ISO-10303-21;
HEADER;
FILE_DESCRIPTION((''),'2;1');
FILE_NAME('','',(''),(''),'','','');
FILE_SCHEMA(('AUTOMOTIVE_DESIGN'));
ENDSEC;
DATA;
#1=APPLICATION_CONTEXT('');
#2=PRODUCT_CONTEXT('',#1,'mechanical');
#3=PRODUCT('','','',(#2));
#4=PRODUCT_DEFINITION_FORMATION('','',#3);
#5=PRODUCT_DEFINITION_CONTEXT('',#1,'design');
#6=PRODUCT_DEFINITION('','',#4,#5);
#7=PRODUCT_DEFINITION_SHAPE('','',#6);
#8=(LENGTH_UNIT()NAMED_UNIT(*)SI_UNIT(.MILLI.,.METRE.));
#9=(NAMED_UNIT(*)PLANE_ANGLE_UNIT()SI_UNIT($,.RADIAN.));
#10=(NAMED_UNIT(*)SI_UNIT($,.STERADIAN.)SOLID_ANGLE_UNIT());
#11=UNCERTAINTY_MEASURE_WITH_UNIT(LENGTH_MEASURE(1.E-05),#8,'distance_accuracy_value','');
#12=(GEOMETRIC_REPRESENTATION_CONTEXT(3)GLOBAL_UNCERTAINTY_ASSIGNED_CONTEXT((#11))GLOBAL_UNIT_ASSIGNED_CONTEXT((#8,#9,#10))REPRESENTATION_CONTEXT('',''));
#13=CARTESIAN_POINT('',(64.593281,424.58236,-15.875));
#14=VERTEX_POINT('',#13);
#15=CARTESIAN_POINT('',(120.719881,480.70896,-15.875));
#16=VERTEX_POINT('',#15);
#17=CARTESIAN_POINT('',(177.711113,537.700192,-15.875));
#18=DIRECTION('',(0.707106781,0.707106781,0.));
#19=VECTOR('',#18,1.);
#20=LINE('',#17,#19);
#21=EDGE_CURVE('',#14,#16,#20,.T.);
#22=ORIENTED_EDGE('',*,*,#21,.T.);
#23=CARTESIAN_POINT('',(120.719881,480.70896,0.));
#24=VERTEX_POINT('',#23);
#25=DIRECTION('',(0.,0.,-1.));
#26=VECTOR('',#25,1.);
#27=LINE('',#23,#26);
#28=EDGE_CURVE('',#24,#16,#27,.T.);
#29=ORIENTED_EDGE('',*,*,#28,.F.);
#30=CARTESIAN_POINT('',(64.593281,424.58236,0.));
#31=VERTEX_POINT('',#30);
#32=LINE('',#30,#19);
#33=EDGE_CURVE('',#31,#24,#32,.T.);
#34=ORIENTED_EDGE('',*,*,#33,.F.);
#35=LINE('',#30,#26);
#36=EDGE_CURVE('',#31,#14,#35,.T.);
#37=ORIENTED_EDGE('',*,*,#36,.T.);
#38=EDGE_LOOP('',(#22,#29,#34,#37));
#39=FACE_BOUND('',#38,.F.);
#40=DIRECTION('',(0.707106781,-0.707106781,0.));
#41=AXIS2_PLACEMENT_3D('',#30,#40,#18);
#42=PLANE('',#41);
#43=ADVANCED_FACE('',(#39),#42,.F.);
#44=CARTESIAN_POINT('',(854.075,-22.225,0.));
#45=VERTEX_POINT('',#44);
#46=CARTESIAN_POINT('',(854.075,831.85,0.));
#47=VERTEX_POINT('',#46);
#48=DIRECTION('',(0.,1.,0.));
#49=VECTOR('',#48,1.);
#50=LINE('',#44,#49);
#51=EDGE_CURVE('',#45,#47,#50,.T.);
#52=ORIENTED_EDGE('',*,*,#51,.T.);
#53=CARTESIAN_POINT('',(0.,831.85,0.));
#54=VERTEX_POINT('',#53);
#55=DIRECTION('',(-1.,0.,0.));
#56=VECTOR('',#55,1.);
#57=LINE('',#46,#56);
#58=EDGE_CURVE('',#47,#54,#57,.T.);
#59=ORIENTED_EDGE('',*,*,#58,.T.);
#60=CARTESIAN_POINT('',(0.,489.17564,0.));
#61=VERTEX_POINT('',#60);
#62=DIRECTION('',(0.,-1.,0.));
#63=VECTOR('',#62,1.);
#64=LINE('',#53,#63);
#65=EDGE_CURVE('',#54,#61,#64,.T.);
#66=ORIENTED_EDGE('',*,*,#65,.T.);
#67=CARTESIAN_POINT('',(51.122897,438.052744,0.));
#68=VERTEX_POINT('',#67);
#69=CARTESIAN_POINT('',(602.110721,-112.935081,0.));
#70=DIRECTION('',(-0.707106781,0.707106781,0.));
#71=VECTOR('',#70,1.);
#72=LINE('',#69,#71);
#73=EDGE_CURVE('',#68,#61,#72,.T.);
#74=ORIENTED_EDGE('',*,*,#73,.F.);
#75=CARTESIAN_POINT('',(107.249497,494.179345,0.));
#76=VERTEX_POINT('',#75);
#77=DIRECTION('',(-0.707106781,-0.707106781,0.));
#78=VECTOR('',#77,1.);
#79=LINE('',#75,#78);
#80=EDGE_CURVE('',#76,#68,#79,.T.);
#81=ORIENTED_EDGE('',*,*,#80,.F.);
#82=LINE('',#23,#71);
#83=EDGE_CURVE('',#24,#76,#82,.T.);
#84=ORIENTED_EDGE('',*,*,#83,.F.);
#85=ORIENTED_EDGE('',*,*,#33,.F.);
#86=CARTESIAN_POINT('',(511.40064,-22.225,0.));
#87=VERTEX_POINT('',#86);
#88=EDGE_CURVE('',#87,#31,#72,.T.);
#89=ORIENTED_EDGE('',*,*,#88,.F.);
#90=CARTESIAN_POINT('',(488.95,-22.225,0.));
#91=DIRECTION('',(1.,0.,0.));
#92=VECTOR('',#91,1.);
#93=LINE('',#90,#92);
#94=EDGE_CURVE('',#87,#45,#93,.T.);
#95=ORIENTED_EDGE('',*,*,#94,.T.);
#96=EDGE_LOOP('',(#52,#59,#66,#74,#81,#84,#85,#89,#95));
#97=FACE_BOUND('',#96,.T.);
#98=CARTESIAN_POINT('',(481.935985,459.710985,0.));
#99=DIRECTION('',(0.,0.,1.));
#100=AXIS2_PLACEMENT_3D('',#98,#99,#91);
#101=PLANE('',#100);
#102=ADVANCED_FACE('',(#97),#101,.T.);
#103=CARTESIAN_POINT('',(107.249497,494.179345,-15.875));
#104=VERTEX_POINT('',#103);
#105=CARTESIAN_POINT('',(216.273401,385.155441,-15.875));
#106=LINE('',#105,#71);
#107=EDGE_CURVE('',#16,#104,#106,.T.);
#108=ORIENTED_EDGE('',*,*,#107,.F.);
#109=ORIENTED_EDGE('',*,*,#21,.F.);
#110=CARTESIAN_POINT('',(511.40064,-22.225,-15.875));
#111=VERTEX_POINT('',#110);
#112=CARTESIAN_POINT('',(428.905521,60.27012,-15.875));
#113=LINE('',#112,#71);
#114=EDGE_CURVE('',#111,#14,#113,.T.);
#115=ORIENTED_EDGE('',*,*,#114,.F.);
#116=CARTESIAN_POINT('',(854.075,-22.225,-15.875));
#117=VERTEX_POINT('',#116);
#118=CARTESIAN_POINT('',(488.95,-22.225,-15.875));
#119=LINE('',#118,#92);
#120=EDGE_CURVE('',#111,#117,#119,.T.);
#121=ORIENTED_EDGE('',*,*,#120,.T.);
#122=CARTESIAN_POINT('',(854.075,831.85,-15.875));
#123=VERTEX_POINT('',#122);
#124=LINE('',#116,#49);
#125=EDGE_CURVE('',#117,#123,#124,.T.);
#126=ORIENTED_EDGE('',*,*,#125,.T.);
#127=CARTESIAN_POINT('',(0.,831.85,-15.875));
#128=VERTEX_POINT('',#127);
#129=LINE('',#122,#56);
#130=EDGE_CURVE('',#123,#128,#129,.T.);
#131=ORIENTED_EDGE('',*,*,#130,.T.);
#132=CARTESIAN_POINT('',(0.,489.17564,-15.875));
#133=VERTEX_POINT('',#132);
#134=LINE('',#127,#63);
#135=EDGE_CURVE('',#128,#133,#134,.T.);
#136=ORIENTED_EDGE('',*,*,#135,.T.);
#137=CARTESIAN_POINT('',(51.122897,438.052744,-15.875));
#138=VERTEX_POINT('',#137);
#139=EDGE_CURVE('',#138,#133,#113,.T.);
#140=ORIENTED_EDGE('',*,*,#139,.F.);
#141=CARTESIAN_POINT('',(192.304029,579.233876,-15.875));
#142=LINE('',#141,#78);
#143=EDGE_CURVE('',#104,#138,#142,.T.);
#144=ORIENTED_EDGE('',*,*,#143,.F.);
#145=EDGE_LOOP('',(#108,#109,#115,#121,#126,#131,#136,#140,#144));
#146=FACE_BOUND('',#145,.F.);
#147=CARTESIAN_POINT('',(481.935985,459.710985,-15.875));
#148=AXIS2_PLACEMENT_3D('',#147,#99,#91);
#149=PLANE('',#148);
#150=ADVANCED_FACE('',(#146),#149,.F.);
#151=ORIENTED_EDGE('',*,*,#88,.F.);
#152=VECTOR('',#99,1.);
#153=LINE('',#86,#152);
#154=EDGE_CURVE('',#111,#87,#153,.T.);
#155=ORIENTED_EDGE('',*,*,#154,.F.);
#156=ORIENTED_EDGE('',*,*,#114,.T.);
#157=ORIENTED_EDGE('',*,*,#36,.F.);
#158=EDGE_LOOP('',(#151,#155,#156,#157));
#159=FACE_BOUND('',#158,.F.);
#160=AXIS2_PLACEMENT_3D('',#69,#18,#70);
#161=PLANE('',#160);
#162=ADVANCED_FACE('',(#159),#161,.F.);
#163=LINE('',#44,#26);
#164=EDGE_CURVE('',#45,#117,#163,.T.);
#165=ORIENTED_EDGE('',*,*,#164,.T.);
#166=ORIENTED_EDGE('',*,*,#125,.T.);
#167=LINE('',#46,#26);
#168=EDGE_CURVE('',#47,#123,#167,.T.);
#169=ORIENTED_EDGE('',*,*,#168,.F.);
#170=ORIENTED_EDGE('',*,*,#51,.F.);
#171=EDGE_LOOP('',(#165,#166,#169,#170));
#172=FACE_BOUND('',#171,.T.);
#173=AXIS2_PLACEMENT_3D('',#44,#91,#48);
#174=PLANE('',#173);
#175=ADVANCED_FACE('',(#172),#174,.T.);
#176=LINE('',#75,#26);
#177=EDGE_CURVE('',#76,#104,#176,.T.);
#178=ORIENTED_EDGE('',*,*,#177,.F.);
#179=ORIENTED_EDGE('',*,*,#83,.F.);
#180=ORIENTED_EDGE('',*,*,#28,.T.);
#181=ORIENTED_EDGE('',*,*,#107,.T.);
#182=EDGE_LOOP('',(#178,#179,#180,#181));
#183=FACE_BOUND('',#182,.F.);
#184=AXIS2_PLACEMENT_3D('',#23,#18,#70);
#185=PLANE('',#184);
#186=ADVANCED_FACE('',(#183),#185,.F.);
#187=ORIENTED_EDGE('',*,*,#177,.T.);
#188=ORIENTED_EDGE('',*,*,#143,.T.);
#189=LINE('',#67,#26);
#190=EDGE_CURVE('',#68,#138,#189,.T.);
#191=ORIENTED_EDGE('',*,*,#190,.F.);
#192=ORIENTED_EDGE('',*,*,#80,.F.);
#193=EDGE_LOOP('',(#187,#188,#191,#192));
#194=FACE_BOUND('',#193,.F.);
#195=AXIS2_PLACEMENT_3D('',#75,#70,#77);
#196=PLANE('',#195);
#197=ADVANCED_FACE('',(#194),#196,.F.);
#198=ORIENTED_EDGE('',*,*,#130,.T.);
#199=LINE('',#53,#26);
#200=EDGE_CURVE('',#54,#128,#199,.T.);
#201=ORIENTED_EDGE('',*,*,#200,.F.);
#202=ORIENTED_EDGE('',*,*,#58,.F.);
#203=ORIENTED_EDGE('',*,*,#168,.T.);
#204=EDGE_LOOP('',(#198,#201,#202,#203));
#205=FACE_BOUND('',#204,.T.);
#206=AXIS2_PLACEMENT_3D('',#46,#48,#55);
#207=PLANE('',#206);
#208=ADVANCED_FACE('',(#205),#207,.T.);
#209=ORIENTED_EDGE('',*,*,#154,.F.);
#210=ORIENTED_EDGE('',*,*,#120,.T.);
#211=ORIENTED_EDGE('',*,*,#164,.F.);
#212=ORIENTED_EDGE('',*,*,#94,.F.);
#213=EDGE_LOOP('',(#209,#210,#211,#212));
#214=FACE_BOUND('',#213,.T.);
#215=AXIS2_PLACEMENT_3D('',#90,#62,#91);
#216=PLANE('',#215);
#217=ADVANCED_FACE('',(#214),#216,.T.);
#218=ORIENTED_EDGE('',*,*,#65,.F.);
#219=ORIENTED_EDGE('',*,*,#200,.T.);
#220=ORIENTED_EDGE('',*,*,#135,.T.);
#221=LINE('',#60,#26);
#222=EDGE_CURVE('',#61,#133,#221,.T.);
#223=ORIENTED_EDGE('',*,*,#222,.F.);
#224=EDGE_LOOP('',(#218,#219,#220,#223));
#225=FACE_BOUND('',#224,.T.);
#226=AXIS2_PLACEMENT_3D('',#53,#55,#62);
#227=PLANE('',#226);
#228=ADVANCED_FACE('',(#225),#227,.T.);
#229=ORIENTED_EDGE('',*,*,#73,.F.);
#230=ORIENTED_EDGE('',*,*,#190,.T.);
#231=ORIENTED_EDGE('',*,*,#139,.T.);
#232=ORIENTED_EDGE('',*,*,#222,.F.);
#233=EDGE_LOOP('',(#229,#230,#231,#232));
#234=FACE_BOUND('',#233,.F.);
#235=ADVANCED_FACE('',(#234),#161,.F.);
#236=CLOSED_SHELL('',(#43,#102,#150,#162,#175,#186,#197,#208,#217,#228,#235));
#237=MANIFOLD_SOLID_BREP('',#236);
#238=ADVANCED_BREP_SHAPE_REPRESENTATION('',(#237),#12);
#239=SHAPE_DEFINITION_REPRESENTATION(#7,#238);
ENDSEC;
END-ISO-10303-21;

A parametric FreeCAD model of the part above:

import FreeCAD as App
import Part
import Sketcher

V = App.Vector
Q = App.Units.Quantity

doc = App.newDocument("Part")
body = doc.addObject("PartDesign::Body", "Body")

sketch1 = doc.addObject("Sketcher::SketchObject", "Sketch")
body.addObject(sketch1)
sketch1.AttachmentSupport = (doc.XY_Plane, [""])
sketch1.MapMode = "FlatFace"
sketch1.addGeometry([
    Part.LineSegment(V(0, 467, 0), V(489, -22, 0)),
    Part.LineSegment(V(489, -22, 0), V(854, -22, 0)),
    Part.LineSegment(V(854, -22, 0), V(854, 832, 0)),
    Part.LineSegment(V(854, 832, 0), V(0, 832, 0)),
    Part.LineSegment(V(0, 832, 0), V(0, 467, 0)),
], False)
sketch1.addConstraint([
    Sketcher.Constraint("Coincident", 0, 2, 1, 1),
    Sketcher.Constraint("Coincident", 1, 2, 2, 1),
    Sketcher.Constraint("Coincident", 2, 2, 3, 1),
    Sketcher.Constraint("Coincident", 3, 2, 4, 1),
    Sketcher.Constraint("Coincident", 4, 2, 0, 1),
    Sketcher.Constraint("Horizontal", 1),
    Sketcher.Constraint("Vertical", 2),
    Sketcher.Constraint("Horizontal", 3),
    Sketcher.Constraint("Vertical", 4),
    Sketcher.Constraint("PointOnObject", 3, 2, -2),
    Sketcher.Constraint("Equal", 3, 2),
    Sketcher.Constraint("Equal", 1, 4),
    Sketcher.Constraint("DistanceX", 1, 1, 1, 2, Q("14.375 in")),
    Sketcher.Constraint("DistanceX", 3, 2, 3, 1, Q("33.625 in")),
    Sketcher.Constraint("DistanceY", -1, 1, 2, 2, Q("32.75 in")),
])
pad1 = doc.addObject("PartDesign::Pad", "Pad")
body.addObject(pad1)
pad1.Profile = sketch1
pad1.Length = Q("0.625 in")
pad1.Reversed = True

sketch2 = doc.addObject("Sketcher::SketchObject", "Sketch001")
body.addObject(sketch2)
sketch2.AttachmentSupport = (doc.XY_Plane, [""])
sketch2.MapMode = "FlatFace"
sketch2.addGeometry([
    Part.LineSegment(V(-102, 569, 0), V(591, -124, 0)),
    Part.LineSegment(V(591, -124, 0), V(602, -113, 0)),
    Part.LineSegment(V(602, -113, 0), V(-91, 580, 0)),
    Part.LineSegment(V(-91, 580, 0), V(-102, 569, 0)),
], False)
sketch2.addConstraint([
    Sketcher.Constraint("Coincident", 0, 2, 1, 1),
    Sketcher.Constraint("Coincident", 1, 2, 2, 1),
    Sketcher.Constraint("Coincident", 2, 2, 3, 1),
    Sketcher.Constraint("Coincident", 3, 2, 0, 1),
    Sketcher.Constraint("Perpendicular", 0, 1),
    Sketcher.Constraint("Perpendicular", 1, 2),
    Sketcher.Constraint("Perpendicular", 2, 3),
    Sketcher.Constraint("Angle", 0, Q("-45 deg")),
    Sketcher.Constraint("Distance", 1, Q("0.625 in")),
    Sketcher.Constraint("DistanceX", -1, 1, 0, 2, 590.885401),
    Sketcher.Constraint("DistanceY", 0, 2, -1, 1, 124.160401),
    Sketcher.Constraint("DistanceX", 3, 2, -1, 1, 101.935401),
])
pocket1 = doc.addObject("PartDesign::Pocket", "Pocket")
body.addObject(pocket1)
pocket1.Profile = sketch2
pocket1.Length = Q("1 in")

sketch3 = doc.addObject("Sketcher::SketchObject", "Sketch002")
body.addObject(sketch3)
sketch3.AttachmentSupport = (doc.XY_Plane, [""])
sketch3.MapMode = "FlatFace"
sketch3.addGeometry([
    Part.LineSegment(V(107, 494, 0), V(51, 438, 0)),
    Part.LineSegment(V(51, 438, 0), V(65, 425, 0)),
    Part.LineSegment(V(65, 425, 0), V(121, 481, 0)),
    Part.LineSegment(V(121, 481, 0), V(107, 494, 0)),
], False)
sketch3.addConstraint([
    Sketcher.Constraint("Coincident", 0, 2, 1, 1),
    Sketcher.Constraint("Coincident", 1, 2, 2, 1),
    Sketcher.Constraint("Coincident", 2, 2, 3, 1),
    Sketcher.Constraint("Coincident", 3, 2, 0, 1),
    Sketcher.Constraint("Perpendicular", 0, 1),
    Sketcher.Constraint("Perpendicular", 1, 2),
    Sketcher.Constraint("Perpendicular", 2, 3),
    Sketcher.Constraint("Angle", 0, Q("-135 deg")),
    Sketcher.Constraint("Distance", 1, Q("0.75 in")),
    Sketcher.Constraint("Distance", 0, Q("3.125 in")),
    Sketcher.Constraint("DistanceX", -1, 1, 1, 2, 64.593281),
    Sketcher.Constraint("DistanceY", -1, 1, 1, 2, 424.58236),
])
pocket2 = doc.addObject("PartDesign::Pocket", "Pocket001")
body.addObject(pocket2)
pocket2.Profile = sketch3
pocket2.Length = Q("1 in")

doc.recompute()
